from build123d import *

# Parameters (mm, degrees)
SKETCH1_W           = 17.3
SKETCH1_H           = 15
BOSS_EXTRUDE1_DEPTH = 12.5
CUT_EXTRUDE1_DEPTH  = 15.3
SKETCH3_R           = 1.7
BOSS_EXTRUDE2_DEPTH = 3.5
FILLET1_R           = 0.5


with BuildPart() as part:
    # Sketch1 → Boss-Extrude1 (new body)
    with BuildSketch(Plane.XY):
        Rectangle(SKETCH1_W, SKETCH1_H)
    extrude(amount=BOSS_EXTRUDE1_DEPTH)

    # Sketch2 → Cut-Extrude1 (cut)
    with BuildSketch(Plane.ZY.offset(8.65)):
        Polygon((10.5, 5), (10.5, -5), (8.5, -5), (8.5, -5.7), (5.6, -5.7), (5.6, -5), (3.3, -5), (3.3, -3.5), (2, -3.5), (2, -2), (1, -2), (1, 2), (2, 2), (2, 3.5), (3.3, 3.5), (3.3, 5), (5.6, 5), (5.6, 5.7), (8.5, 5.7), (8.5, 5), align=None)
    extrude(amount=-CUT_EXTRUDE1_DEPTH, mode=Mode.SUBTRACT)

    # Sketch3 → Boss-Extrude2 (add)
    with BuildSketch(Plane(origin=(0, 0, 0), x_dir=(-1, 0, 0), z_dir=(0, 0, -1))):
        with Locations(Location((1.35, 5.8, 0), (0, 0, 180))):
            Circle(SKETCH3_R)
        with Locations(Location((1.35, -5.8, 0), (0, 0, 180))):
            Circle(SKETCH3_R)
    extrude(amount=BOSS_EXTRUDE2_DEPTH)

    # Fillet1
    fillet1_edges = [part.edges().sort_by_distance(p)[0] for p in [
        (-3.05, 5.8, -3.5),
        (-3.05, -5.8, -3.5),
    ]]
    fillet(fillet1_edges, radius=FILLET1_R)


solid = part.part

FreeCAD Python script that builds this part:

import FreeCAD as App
import Part
import Sketcher
from FreeCAD import Vector
Q = App.Units.Quantity


def edges_at(feature, points):
    """Names of the edges that pass closest to the given points."""
    edges = feature.Shape.Edges
    near = lambda p: min(range(len(edges)), key=lambda i: edges[i].distToShape(Part.Vertex(*p))[0])
    return sorted({f"Edge{near(p) + 1}" for p in points})

doc = App.newDocument("Part")
body = doc.addObject("PartDesign::Body", "Body")

# Sketch on XY plane
sketch1 = doc.addObject("Sketcher::SketchObject", "Sketch")
body.addObject(sketch1)
sketch1.AttachmentSupport = (doc.XY_Plane, [""])
sketch1.MapMode = "FlatFace"
sketch1.addGeometry(Part.LineSegment(Vector(-9, 8, 0), Vector(-9, -8, 0)), False)
sketch1.addGeometry(Part.LineSegment(Vector(-9, -8, 0), Vector(9, -8, 0)), False)
sketch1.addGeometry(Part.LineSegment(Vector(9, -8, 0), Vector(9, 8, 0)), False)
sketch1.addGeometry(Part.LineSegment(Vector(9, 8, 0), Vector(-9, 8, 0)), False)
sketch1.addConstraint(Sketcher.Constraint("Coincident", 0, 2, 1, 1))
sketch1.addConstraint(Sketcher.Constraint("Coincident", 1, 2, 2, 1))
sketch1.addConstraint(Sketcher.Constraint("Coincident", 2, 2, 3, 1))
sketch1.addConstraint(Sketcher.Constraint("Coincident", 3, 2, 0, 1))
sketch1.addConstraint(Sketcher.Constraint("Vertical", 0))
sketch1.addConstraint(Sketcher.Constraint("Horizontal", 1))
sketch1.addConstraint(Sketcher.Constraint("Vertical", 2))
sketch1.addConstraint(Sketcher.Constraint("Horizontal", 3))
sketch1.addConstraint(Sketcher.Constraint("Symmetric", 0, 2, 2, 2, -1, 1))
sketch1.addConstraint(Sketcher.Constraint("DistanceY", 0, 2, 0, 1, Q("15 mm")))
sketch1.addConstraint(Sketcher.Constraint("DistanceX", 1, 1, 1, 2, Q("17.3 mm")))
pad1 = doc.addObject("PartDesign::Pad", "Pad")
body.addObject(pad1)
pad1.Profile = sketch1
pad1.Length = 12.5

# Sketch on YZ plane
sketch2 = doc.addObject("Sketcher::SketchObject", "Sketch001")
body.addObject(sketch2)
sketch2.AttachmentSupport = (doc.YZ_Plane, [""])
sketch2.MapMode = "FlatFace"
sketch2.AttachmentOffset = App.Placement(Vector(0, 0, -8.65), App.Rotation())
sketch2.addGeometry(Part.LineSegment(Vector(-5, 10.5, 0), Vector(5, 10.5, 0)), False)
sketch2.addGeometry(Part.LineSegment(Vector(5, 10.5, 0), Vector(5, 8.5, 0)), False)
sketch2.addGeometry(Part.LineSegment(Vector(5, 8.5, 0), Vector(5.7, 8.5, 0)), False)
sketch2.addGeometry(Part.LineSegment(Vector(5.7, 8.5, 0), Vector(5.7, 5.6, 0)), False)
sketch2.addGeometry(Part.LineSegment(Vector(5.7, 5.6, 0), Vector(5, 5.6, 0)), False)
sketch2.addGeometry(Part.LineSegment(Vector(5, 5.6, 0), Vector(5, 3.3, 0)), False)
sketch2.addGeometry(Part.LineSegment(Vector(5, 3.3, 0), Vector(3.5, 3.3, 0)), False)
sketch2.addGeometry(Part.LineSegment(Vector(3.5, 3.3, 0), Vector(3.5, 2, 0)), False)
sketch2.addGeometry(Part.LineSegment(Vector(3.5, 2, 0), Vector(2, 2, 0)), False)
sketch2.addGeometry(Part.LineSegment(Vector(2, 2, 0), Vector(2, 1, 0)), False)
sketch2.addGeometry(Part.LineSegment(Vector(2, 1, 0), Vector(-2, 1, 0)), False)
sketch2.addGeometry(Part.LineSegment(Vector(-2, 1, 0), Vector(-2, 2, 0)), False)
sketch2.addGeometry(Part.LineSegment(Vector(-2, 2, 0), Vector(-3.5, 2, 0)), False)
sketch2.addGeometry(Part.LineSegment(Vector(-3.5, 2, 0), Vector(-3.5, 3.3, 0)), False)
sketch2.addGeometry(Part.LineSegment(Vector(-3.5, 3.3, 0), Vector(-5, 3.3, 0)), False)
sketch2.addGeometry(Part.LineSegment(Vector(-5, 3.3, 0), Vector(-5, 5.6, 0)), False)
sketch2.addGeometry(Part.LineSegment(Vector(-5, 5.6, 0), Vector(-5.7, 5.6, 0)), False)
sketch2.addGeometry(Part.LineSegment(Vector(-5.7, 5.6, 0), Vector(-5.7, 8.5, 0)), False)
sketch2.addGeometry(Part.LineSegment(Vector(-5.7, 8.5, 0), Vector(-5, 8.5, 0)), False)
sketch2.addGeometry(Part.LineSegment(Vector(-5, 8.5, 0), Vector(-5, 10.5, 0)), False)
sketch2.addConstraint(Sketcher.Constraint("Coincident", 0, 2, 1, 1))
sketch2.addConstraint(Sketcher.Constraint("Coincident", 1, 2, 2, 1))
sketch2.addConstraint(Sketcher.Constraint("Coincident", 2, 2, 3, 1))
sketch2.addConstraint(Sketcher.Constraint("Coincident", 3, 2, 4, 1))
sketch2.addConstraint(Sketcher.Constraint("Coincident", 4, 2, 5, 1))
sketch2.addConstraint(Sketcher.Constraint("Coincident", 5, 2, 6, 1))
sketch2.addConstraint(Sketcher.Constraint("Coincident", 6, 2, 7, 1))
sketch2.addConstraint(Sketcher.Constraint("Coincident", 7, 2, 8, 1))
sketch2.addConstraint(Sketcher.Constraint("Coincident", 8, 2, 9, 1))
sketch2.addConstraint(Sketcher.Constraint("Coincident", 9, 2, 10, 1))
sketch2.addConstraint(Sketcher.Constraint("Coincident", 10, 2, 11, 1))
sketch2.addConstraint(Sketcher.Constraint("Coincident", 11, 2, 12, 1))
sketch2.addConstraint(Sketcher.Constraint("Coincident", 12, 2, 13, 1))
sketch2.addConstraint(Sketcher.Constraint("Coincident", 13, 2, 14, 1))
sketch2.addConstraint(Sketcher.Constraint("Coincident", 14, 2, 15, 1))
sketch2.addConstraint(Sketcher.Constraint("Coincident", 15, 2, 16, 1))
sketch2.addConstraint(Sketcher.Constraint("Coincident", 16, 2, 17, 1))
sketch2.addConstraint(Sketcher.Constraint("Coincident", 17, 2, 18, 1))
sketch2.addConstraint(Sketcher.Constraint("Coincident", 18, 2, 19, 1))
sketch2.addConstraint(Sketcher.Constraint("Coincident", 19, 2, 0, 1))
sketch2.addConstraint(Sketcher.Constraint("Horizontal", 0))
sketch2.addConstraint(Sketcher.Constraint("Vertical", 1))
sketch2.addConstraint(Sketcher.Constraint("Horizontal", 2))
sketch2.addConstraint(Sketcher.Constraint("Vertical", 3))
sketch2.addConstraint(Sketcher.Constraint("Horizontal", 4))
sketch2.addConstraint(Sketcher.Constraint("Vertical", 5))
sketch2.addConstraint(Sketcher.Constraint("Horizontal", 6))
sketch2.addConstraint(Sketcher.Constraint("Vertical", 7))
sketch2.addConstraint(Sketcher.Constraint("Horizontal", 8))
sketch2.addConstraint(Sketcher.Constraint("Vertical", 9))
sketch2.addConstraint(Sketcher.Constraint("Horizontal", 10))
sketch2.addConstraint(Sketcher.Constraint("Vertical", 11))
sketch2.addConstraint(Sketcher.Constraint("Horizontal", 12))
sketch2.addConstraint(Sketcher.Constraint("Vertical", 13))
sketch2.addConstraint(Sketcher.Constraint("Horizontal", 14))
sketch2.addConstraint(Sketcher.Constraint("Vertical", 15))
sketch2.addConstraint(Sketcher.Constraint("Horizontal", 16))
sketch2.addConstraint(Sketcher.Constraint("Vertical", 17))
sketch2.addConstraint(Sketcher.Constraint("Horizontal", 18))
sketch2.addConstraint(Sketcher.Constraint("Vertical", 19))
sketch2.addConstraint(Sketcher.Constraint("Symmetric", 8, 2, 11, 2, -2))
sketch2.addConstraint(Sketcher.Constraint("Symmetric", 6, 2, 13, 2, -2))
sketch2.addConstraint(Sketcher.Constraint("Symmetric", 4, 2, 15, 2, -2))
sketch2.addConstraint(Sketcher.Constraint("Symmetric", 2, 2, 17, 2, -2))
sketch2.addConstraint(Sketcher.Constraint("Vertical", 1, 2, 4, 2))
sketch2.addConstraint(Sketcher.Constraint("Vertical", 15, 2, 18, 2))
sketch2.addConstraint(Sketcher.Constraint("Equal", 6, 8))
sketch2.addConstraint(Sketcher.Constraint("DistanceX", 0, 1, 0, 2, Q("10 mm")))
sketch2.addConstraint(Sketcher.Constraint("DistanceX", 10, 2, 10, 1, Q("4 mm")))
sketch2.addConstraint(Sketcher.Constraint("DistanceY", 1, 2, 1, 1, Q("2 mm")))
sketch2.addConstraint(Sketcher.Constraint("DistanceY", 9, 2, 9, 1, Q("1 mm")))
sketch2.addConstraint(Sketcher.Constraint("DistanceX", 2, 1, 2, 2, Q("0.7 mm")))
sketch2.addConstraint(Sketcher.Constraint("DistanceY", 3, 2, 3, 1, Q("2.9 mm")))
sketch2.addConstraint(Sketcher.Constraint("DistanceY", 5, 2, 5, 1, Q("2.3 mm")))
sketch2.addConstraint(Sketcher.Constraint("DistanceY", 7, 2, 7, 1, Q("1.3 mm")))
sketch2.addConstraint(Sketcher.Constraint("DistanceY", -1, 1, 7, 2, Q("2 mm")))
pocket1 = doc.addObject("PartDesign::Pocket", "Pocket")
body.addObject(pocket1)
pocket1.Profile = sketch2
pocket1.Length = 15.3
pocket1.Reversed = True

# Sketch on XY plane
sketch3 = doc.addObject("Sketcher::SketchObject", "Sketch002")
body.addObject(sketch3)
sketch3.AttachmentSupport = (doc.XY_Plane, [""])
sketch3.MapMode = "FlatFace"
sketch3.addGeometry(Part.Circle(Vector(-1.4, 5.8, 0), Vector(0, 0, 1), 1.7), False)
sketch3.addGeometry(Part.Circle(Vector(-1.4, -5.8, 0), Vector(0, 0, 1), 1.7), False)
sketch3.addConstraint(Sketcher.Constraint("Equal", 0, 1))
sketch3.addConstraint(Sketcher.Constraint("Symmetric", 0, 3, 1, 3, -1))
sketch3.addConstraint(Sketcher.Constraint("Diameter", 0, Q("3.4 mm")))
sketch3.addConstraint(Sketcher.Constraint("DistanceY", -1, 1, 0, 3, Q("5.8 mm")))
sketch3.addConstraint(Sketcher.Constraint("DistanceX", 0, 3, -1, 1, Q("1.35 mm")))
pad2 = doc.addObject("PartDesign::Pad", "Pad001")
body.addObject(pad2)
pad2.Profile = sketch3
pad2.Length = 3.5
pad2.Reversed = True
doc.recompute()

fillet = doc.addObject("PartDesign::Fillet", "Fillet")
body.addObject(fillet)
fillet.Base = (pad2, edges_at(pad2, [(-3.05, 5.8, -3.5), (-3.05, -5.8, -3.5)]))
fillet.Radius = 0.5

doc.recompute()
